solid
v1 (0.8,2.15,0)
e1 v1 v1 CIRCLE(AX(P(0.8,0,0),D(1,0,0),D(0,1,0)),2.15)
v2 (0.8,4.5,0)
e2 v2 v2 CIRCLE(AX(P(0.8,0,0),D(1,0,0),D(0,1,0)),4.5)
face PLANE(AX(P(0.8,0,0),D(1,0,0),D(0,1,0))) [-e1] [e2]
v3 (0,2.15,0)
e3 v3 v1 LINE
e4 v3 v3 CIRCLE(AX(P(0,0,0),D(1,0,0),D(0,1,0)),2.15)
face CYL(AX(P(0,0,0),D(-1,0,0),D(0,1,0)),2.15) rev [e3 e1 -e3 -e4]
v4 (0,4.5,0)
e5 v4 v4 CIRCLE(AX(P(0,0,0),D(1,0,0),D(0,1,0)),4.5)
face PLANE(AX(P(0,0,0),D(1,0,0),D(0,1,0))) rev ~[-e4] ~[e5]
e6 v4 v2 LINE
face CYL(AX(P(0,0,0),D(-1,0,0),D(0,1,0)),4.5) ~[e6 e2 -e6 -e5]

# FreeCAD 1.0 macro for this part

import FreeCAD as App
import Part
import Sketcher
Q = App.Units.Quantity

doc = App.newDocument("Part")
body = doc.addObject("PartDesign::Body", "Body")

# Sketch on YZ plane
sketch1 = doc.addObject("Sketcher::SketchObject", "Sketch")
body.addObject(sketch1)
sketch1.AttachmentSupport = (doc.YZ_Plane, [""])
sketch1.MapMode = "FlatFace"
sketch1.addGeometry(Part.Circle(App.Vector(0, 0, 0), App.Vector(0, 0, 1), 4.5), False)
sketch1.addGeometry(Part.Circle(App.Vector(0, 0, 0), App.Vector(0, 0, 1), 2.1), False)
sketch1.addConstraint(Sketcher.Constraint("Coincident", 0, 3, -1, 1))
sketch1.addConstraint(Sketcher.Constraint("Coincident", 1, 3, -1, 1))
sketch1.addConstraint(Sketcher.Constraint("Diameter", 0, Q("9 mm")))
sketch1.addConstraint(Sketcher.Constraint("Diameter", 1, Q("4.3 mm")))
pad1 = doc.addObject("PartDesign::Pad", "Pad")
body.addObject(pad1)
pad1.Profile = sketch1
pad1.Length = 0.8

doc.recompute()
